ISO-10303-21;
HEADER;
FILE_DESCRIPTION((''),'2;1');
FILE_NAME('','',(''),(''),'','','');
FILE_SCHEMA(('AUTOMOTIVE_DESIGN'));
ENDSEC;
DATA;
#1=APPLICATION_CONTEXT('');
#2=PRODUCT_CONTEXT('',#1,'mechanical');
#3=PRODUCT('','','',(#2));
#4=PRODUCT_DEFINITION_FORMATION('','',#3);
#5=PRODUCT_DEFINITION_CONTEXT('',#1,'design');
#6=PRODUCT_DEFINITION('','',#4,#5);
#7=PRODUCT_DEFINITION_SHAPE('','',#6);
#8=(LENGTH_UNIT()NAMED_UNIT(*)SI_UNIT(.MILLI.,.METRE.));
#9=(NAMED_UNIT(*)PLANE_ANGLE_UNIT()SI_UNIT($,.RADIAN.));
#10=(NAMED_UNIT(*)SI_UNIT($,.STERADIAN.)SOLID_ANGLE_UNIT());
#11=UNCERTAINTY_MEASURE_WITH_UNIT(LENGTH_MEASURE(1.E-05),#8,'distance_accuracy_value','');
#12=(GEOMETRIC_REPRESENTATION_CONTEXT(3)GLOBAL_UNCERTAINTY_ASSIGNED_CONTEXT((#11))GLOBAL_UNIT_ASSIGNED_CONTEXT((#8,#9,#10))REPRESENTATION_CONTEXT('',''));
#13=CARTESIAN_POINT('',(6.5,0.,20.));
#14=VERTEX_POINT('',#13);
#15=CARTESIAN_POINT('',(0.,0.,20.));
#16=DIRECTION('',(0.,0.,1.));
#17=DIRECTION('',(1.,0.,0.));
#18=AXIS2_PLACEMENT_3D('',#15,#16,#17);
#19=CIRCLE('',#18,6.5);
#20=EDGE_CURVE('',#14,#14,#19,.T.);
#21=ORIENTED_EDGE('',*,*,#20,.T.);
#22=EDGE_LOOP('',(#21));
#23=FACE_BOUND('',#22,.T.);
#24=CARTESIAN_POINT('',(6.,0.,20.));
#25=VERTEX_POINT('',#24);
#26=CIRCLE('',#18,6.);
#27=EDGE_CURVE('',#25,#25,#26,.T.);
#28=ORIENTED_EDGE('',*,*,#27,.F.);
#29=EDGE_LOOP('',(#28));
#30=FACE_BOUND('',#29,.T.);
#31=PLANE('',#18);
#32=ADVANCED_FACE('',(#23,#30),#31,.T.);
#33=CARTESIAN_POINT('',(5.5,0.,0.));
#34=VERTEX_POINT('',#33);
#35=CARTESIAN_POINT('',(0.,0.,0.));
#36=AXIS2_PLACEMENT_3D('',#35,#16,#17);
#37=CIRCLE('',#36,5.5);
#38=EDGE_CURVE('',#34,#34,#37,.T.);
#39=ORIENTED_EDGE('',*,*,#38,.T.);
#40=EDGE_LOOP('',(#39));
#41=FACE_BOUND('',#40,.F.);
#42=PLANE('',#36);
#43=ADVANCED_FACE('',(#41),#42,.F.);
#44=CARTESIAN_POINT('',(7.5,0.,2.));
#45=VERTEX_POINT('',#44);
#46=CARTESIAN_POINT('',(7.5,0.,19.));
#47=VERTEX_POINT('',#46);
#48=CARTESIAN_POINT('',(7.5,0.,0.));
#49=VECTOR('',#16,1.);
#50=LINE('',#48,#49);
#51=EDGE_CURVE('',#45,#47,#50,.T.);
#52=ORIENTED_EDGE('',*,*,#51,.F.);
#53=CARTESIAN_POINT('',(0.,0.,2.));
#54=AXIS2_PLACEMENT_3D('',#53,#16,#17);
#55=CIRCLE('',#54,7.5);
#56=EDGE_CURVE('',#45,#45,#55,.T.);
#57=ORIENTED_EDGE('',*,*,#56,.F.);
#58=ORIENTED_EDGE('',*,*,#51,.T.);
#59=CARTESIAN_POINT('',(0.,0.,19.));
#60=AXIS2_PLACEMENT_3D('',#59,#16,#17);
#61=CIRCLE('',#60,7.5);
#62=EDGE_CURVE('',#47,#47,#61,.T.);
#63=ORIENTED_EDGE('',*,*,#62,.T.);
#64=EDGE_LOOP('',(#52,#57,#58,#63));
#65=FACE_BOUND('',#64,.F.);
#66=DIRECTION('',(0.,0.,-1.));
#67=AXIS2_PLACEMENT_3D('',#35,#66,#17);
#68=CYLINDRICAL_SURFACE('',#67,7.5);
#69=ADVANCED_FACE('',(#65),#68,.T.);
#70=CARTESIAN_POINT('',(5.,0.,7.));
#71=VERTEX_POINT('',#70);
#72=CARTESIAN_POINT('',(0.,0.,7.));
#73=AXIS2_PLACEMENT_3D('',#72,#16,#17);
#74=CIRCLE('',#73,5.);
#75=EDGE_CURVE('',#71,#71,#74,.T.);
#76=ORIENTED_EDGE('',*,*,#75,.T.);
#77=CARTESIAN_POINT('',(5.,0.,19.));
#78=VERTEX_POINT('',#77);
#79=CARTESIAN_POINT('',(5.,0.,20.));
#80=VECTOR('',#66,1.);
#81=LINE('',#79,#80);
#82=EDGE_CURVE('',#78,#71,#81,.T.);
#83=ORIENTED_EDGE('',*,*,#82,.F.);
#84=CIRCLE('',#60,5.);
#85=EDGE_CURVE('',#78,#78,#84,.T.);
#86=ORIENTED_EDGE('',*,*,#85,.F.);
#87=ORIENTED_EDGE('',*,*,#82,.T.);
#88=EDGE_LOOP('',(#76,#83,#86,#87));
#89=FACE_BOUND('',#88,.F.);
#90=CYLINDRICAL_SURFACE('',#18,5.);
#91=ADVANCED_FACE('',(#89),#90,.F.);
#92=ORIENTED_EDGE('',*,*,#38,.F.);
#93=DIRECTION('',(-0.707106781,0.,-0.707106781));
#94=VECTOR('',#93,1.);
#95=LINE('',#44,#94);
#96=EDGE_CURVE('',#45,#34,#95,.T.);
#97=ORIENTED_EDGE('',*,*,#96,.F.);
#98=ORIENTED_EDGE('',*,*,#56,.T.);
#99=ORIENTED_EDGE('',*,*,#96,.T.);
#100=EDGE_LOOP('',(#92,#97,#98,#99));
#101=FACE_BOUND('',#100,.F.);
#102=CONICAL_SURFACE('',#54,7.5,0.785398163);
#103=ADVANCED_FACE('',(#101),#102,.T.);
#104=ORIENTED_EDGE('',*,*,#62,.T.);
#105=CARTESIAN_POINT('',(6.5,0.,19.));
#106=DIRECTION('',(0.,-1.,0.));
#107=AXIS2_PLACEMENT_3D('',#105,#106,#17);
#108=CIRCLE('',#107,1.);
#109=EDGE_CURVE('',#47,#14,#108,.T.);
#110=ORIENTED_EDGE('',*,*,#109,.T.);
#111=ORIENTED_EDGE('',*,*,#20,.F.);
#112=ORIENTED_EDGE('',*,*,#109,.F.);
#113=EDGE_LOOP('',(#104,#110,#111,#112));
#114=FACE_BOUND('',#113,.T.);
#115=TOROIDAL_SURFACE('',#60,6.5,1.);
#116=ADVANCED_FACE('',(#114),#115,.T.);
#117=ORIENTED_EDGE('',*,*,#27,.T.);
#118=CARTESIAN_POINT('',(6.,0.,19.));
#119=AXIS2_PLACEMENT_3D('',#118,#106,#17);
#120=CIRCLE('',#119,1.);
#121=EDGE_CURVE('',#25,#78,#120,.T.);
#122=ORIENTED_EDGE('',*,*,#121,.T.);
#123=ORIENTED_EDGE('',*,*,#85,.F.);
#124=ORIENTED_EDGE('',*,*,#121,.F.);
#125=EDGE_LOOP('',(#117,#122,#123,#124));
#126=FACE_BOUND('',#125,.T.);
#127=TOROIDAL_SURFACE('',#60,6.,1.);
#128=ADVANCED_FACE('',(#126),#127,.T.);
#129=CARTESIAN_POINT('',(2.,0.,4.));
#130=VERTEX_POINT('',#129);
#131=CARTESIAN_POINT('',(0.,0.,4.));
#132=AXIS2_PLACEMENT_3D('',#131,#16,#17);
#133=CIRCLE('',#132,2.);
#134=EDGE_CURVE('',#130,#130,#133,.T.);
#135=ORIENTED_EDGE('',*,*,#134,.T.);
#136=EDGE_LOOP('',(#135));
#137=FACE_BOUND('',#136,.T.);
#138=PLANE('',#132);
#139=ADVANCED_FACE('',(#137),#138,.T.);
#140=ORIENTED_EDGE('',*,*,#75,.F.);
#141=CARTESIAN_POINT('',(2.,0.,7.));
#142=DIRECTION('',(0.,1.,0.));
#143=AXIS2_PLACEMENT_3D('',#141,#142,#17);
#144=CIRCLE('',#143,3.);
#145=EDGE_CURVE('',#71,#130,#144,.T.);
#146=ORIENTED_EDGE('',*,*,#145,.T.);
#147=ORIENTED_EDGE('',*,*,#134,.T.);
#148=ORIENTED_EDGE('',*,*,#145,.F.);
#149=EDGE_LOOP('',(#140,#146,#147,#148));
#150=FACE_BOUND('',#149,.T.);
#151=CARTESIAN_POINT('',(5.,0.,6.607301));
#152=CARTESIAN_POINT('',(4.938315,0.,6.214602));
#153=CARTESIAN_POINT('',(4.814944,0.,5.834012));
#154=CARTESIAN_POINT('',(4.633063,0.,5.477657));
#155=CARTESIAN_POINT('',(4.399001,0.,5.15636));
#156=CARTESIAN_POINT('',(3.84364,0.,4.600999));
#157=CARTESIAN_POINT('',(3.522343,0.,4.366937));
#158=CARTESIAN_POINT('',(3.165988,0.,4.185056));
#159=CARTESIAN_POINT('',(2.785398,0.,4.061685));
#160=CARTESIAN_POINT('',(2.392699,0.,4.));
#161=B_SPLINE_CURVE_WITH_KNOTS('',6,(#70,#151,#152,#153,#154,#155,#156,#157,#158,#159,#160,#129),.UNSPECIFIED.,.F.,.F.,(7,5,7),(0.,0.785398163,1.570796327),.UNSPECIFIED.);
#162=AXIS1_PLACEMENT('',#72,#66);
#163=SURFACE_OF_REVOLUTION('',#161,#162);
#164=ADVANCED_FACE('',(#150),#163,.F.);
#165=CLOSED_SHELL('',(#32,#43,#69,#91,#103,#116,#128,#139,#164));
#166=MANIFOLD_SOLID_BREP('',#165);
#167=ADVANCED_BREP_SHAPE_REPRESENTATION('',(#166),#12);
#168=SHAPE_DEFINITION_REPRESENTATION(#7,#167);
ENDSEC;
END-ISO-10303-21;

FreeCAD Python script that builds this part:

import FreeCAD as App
import Part
import Sketcher
from FreeCAD import Vector
Q = App.Units.Quantity


def edges_at(feature, points):
    """Names of the edges that pass closest to the given points."""
    edges = feature.Shape.Edges
    near = lambda p: min(range(len(edges)), key=lambda i: edges[i].distToShape(Part.Vertex(*p))[0])
    return sorted({f"Edge{near(p) + 1}" for p in points})

doc = App.newDocument("Part")
body = doc.addObject("PartDesign::Body", "Body")

# Sketch on XY plane
sketch1 = body.newObject("Sketcher::SketchObject", "Sketch")
sketch1.AttachmentSupport = (doc.getObject("XY_Plane"), [""])
sketch1.MapMode = "FlatFace"
sketch1.addGeometry(Part.Circle(Vector(0, 0, 0), Vector(0, 0, 1), 8), False)
sketch1.addConstraint(Sketcher.Constraint("Coincident", 0, 3, -1, 1))
sketch1.addConstraint(Sketcher.Constraint("Diameter", 0, Q("15 mm")))
pad1 = body.newObject("PartDesign::Pad", "Pad")
pad1.Profile = sketch1
pad1.Length = 20

# Sketch on XY plane
sketch2 = body.newObject("Sketcher::SketchObject", "Sketch001")
sketch2.AttachmentSupport = (doc.getObject("XY_Plane"), [""])
sketch2.MapMode = "FlatFace"
sketch2.AttachmentOffset = App.Placement(Vector(0, 0, 20), App.Rotation())
sketch2.addGeometry(Part.Circle(Vector(0, 0, 0), Vector(0, 0, 1), 5), False)
sketch2.addConstraint(Sketcher.Constraint("Coincident", 0, 3, -1, 1))
sketch2.addConstraint(Sketcher.Constraint("Diameter", 0, Q("10 mm")))
pocket1 = body.newObject("PartDesign::Pocket", "Pocket")
pocket1.Profile = sketch2
pocket1.Length = 16
doc.recompute()

chamfer = body.newObject("PartDesign::Chamfer", "Chamfer")
chamfer.Base = (pocket1, edges_at(pocket1, [(-7.5, 0, 0)]))
chamfer.Size = 2
doc.recompute()

fillet = body.newObject("PartDesign::Fillet", "Fillet")
fillet.Base = (chamfer, edges_at(chamfer, [(-7.5, 0, 20), (-5, 0, 20)]))
fillet.Radius = 1
doc.recompute()

fillet2 = body.newObject("PartDesign::Fillet", "Fillet001")
fillet2.Base = (fillet, edges_at(fillet, [(-5, 0, 4)]))
fillet2.Radius = 3

doc.recompute()
